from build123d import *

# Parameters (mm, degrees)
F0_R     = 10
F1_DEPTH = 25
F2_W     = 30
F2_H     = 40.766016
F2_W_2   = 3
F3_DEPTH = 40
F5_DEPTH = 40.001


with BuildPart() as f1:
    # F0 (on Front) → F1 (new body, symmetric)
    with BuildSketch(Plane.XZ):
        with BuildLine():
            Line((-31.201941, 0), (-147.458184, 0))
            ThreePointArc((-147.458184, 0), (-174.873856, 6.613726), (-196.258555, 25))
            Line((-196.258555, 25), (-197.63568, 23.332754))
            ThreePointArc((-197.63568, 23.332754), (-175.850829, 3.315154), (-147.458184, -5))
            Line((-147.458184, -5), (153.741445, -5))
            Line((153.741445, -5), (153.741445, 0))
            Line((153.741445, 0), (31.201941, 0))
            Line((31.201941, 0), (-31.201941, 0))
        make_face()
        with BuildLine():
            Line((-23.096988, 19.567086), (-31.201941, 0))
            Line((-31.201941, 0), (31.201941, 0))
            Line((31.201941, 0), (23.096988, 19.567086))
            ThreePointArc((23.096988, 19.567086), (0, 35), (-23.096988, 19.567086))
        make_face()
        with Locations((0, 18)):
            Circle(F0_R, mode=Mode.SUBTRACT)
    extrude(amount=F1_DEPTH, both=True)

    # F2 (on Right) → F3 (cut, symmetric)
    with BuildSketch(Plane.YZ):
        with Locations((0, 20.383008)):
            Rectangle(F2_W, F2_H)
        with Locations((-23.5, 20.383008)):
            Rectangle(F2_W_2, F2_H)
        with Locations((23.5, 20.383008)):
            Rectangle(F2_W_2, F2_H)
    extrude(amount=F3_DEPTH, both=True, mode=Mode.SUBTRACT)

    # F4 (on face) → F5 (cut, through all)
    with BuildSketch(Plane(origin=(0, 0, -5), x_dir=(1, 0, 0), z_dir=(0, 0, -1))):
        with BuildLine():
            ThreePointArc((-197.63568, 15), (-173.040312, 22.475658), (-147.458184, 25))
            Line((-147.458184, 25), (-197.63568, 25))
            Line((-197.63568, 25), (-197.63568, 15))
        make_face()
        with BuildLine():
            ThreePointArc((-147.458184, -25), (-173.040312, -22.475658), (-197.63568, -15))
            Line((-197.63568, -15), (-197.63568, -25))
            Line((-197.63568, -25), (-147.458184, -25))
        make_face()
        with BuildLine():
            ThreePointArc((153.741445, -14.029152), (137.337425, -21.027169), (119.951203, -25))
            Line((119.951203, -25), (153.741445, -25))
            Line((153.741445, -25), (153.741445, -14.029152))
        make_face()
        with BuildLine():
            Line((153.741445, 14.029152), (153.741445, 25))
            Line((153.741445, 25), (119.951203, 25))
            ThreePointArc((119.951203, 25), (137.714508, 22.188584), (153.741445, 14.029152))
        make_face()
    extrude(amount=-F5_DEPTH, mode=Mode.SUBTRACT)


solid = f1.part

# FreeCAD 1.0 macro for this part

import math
import FreeCAD as App
import Part
import Sketcher
Q = App.Units.Quantity


def add_polygon(sketch, points):
    """Adds a closed chain of lines whose ends are joined by coincident constraints."""
    first, n = sketch.GeometryCount, len(points)
    for a, b in zip(points, points[1:] + points[:1]):
        sketch.addGeometry(Part.LineSegment(App.Vector(*a, 0), App.Vector(*b, 0)), False)
    for i in range(n):
        sketch.addConstraint(Sketcher.Constraint("Coincident", first + i, 2, first + (i + 1) % n, 1))

doc = App.newDocument("Part")
body = doc.addObject("PartDesign::Body", "Body")

# Sketch on XZ plane
sketch1 = body.newObject("Sketcher::SketchObject", "Sketch")
sketch1.AttachmentSupport = (doc.getObject("XZ_Plane"), [""])
sketch1.MapMode = "FlatFace"
sketch1.addGeometry([
    Part.ArcOfCircle(Part.Circle(App.Vector(-147.458186, 60.129521, 0), App.Vector(0, 0, 1), 60.129521), math.radians(-144.251329), math.radians(-89.999998)),  # 0
    Part.LineSegment(App.Vector(-196.258555, 25, 0), App.Vector(-197.63568, 23.332754, 0)),  # 1
    Part.ArcOfCircle(Part.Circle(App.Vector(-143.827738, 60.028261, 0), App.Vector(0, 0, 1), 65.129524), math.radians(-145.707109), math.radians(-93.195434)),  # 2
    Part.LineSegment(App.Vector(-147.458184, -5, 0), App.Vector(153.741445, -5, 0)),  # 3
    Part.LineSegment(App.Vector(153.741445, -5, 0), App.Vector(153.741445, 0, 0)),  # 4
    Part.LineSegment(App.Vector(153.741445, 0, 0), App.Vector(31.201941, 0, 0)),  # 5
    Part.LineSegment(App.Vector(31.201941, 0, 0), App.Vector(23.096988, 19.567086, 0)),  # 6
    Part.ArcOfCircle(Part.Circle(App.Vector(0, 10, 0), App.Vector(0, 0, 1), 25), math.radians(22.5), math.radians(157.5)),  # 7
    Part.LineSegment(App.Vector(-23.096988, 19.567086, 0), App.Vector(-31.201941, 0, 0)),  # 8
    Part.LineSegment(App.Vector(-31.201941, 0, 0), App.Vector(-147.458184, 0, 0)),  # 9
    Part.Circle(App.Vector(0, 18, 0), App.Vector(0, 0, 1), 10),  # 10
], False)
sketch1.addConstraint([
    Sketcher.Constraint("Coincident", 0, 1, 1, 1),
    Sketcher.Constraint("Coincident", 1, 2, 2, 1),
    Sketcher.Constraint("Coincident", 2, 2, 3, 1),
    Sketcher.Constraint("Coincident", 3, 2, 4, 1),
    Sketcher.Constraint("Coincident", 4, 2, 5, 1),
    Sketcher.Constraint("Coincident", 5, 2, 6, 1),
    Sketcher.Constraint("Tangent", 6, 2, 7, 1),
    Sketcher.Constraint("Tangent", 7, 2, 8, 1),
    Sketcher.Constraint("Coincident", 8, 2, 9, 1),
    Sketcher.Constraint("Tangent", 9, 2, 0, 2),
    Sketcher.Constraint("Horizontal", 3),
    Sketcher.Constraint("Vertical", 4),
    Sketcher.Constraint("Horizontal", 5),
    Sketcher.Constraint("Horizontal", 9),
    Sketcher.Constraint("Symmetric", 5, 2, 8, 2, -1, 1),
    Sketcher.Constraint("Symmetric", 6, 2, 7, 2, -2),
    Sketcher.Constraint("PointOnObject", 10, 3, -2),
    Sketcher.Constraint("Vertical", 0, 3, 2, 2),
    Sketcher.Constraint("Diameter", 10, Q("20 mm")),
    Sketcher.Constraint("Radius", 7, Q("25 mm")),
    Sketcher.Constraint("DistanceY", 4, 1, 4, 2, Q("5 mm")),
    Sketcher.Constraint("DistanceY", -1, 1, 7, 3, Q("10 mm")),
    Sketcher.Constraint("DistanceY", -1, 1, 10, 3, Q("18 mm")),
    Sketcher.Constraint("DistanceY", -1, 1, 0, 1, Q("25 mm")),
    Sketcher.Constraint("Angle", 6, Q("112.500002 deg")),
    Sketcher.Constraint("Radius", 0, Q("60.129521 mm")),
    Sketcher.Constraint("Radius", 2, Q("65.129524 mm")),
    Sketcher.Constraint("DistanceX", 3, 1, 3, 2, Q("301.199629 mm")),
    Sketcher.Constraint("Distance", 1, Q("2.162448 mm")),
    Sketcher.Constraint("DistanceX", 5, 2, 5, 1, Q("122.539504 mm")),
    Sketcher.Constraint("DistanceY", -1, 1, 2, 3, Q("60.028261 mm")),
])
pad1 = body.newObject("PartDesign::Pad", "Pad")
pad1.Profile = sketch1
pad1.Length = 50
pad1.Midplane = True

# Sketch on YZ plane
sketch2 = body.newObject("Sketcher::SketchObject", "Sketch001")
sketch2.AttachmentSupport = (doc.getObject("YZ_Plane"), [""])
sketch2.MapMode = "FlatFace"
add_polygon(sketch2, [(-15, 40.766016), (-15, 0), (15, 0), (15, 40.766016)])  # lines 0-3
add_polygon(sketch2, [(-25, 40.766016), (-25, 0), (-22, 0), (-22, 40.766016)])  # lines 4-7
add_polygon(sketch2, [(22, 40.766016), (22, 0), (25, 0), (25, 40.766016)])  # lines 8-11
sketch2.addConstraint([
    Sketcher.Constraint("Vertical", 0),
    Sketcher.Constraint("Horizontal", 1),
    Sketcher.Constraint("Vertical", 2),
    Sketcher.Constraint("Horizontal", 3),
    Sketcher.Constraint("Vertical", 4),
    Sketcher.Constraint("Horizontal", 5),
    Sketcher.Constraint("Vertical", 6),
    Sketcher.Constraint("Horizontal", 7),
    Sketcher.Constraint("Vertical", 8),
    Sketcher.Constraint("Horizontal", 9),
    Sketcher.Constraint("Vertical", 10),
    Sketcher.Constraint("Horizontal", 11),
    Sketcher.Constraint("Symmetric", 0, 2, 1, 2, -1, 1),
    Sketcher.Constraint("Symmetric", 5, 2, 8, 2, -1, 1),
    Sketcher.Constraint("Symmetric", 4, 2, 9, 2, -2),
    Sketcher.Constraint("Horizontal", 3, 2, 6, 2),
    Sketcher.Constraint("Horizontal", 7, 2, 10, 2),
    Sketcher.Constraint("DistanceX", 1, 1, 1, 2, Q("30 mm")),
    Sketcher.Constraint("DistanceX", 5, 1, 5, 2, Q("3 mm")),
    Sketcher.Constraint("DistanceX", 4, 2, -1, 1, Q("25 mm")),
    Sketcher.Constraint("DistanceY", 0, 2, 0, 1, Q("40.766016 mm")),
])
pocket1 = body.newObject("PartDesign::Pocket", "Pocket")
pocket1.Profile = sketch2
pocket1.Length = 80
pocket1.Midplane = True

# Sketch on XY plane
sketch3 = body.newObject("Sketcher::SketchObject", "Sketch002")
sketch3.AttachmentSupport = (doc.getObject("XY_Plane"), [""])
sketch3.MapMode = "FlatFace"
sketch3.AttachmentOffset = App.Placement(App.Vector(0, 0, -5), App.Rotation())
sketch3.addGeometry([
    Part.ArcOfCircle(Part.Circle(App.Vector(-147.458188, 105.889036, 0), App.Vector(0, 0, 1), 130.889036), math.radians(-112.541904), math.radians(-89.999998)),  # 0
    Part.LineSegment(App.Vector(-147.458184, -25, 0), App.Vector(-197.63568, -25, 0)),  # 1
    Part.LineSegment(App.Vector(-197.63568, -25, 0), App.Vector(-197.63568, -15, 0)),  # 2
    Part.ArcOfCircle(Part.Circle(App.Vector(-147.458188, -105.889036, 0), App.Vector(0, 0, 1), 130.889036), math.radians(89.999998), math.radians(112.541904)),  # 3
    Part.LineSegment(App.Vector(-197.63568, 15, 0), App.Vector(-197.63568, 25, 0)),  # 4
    Part.LineSegment(App.Vector(-197.63568, 25, 0), App.Vector(-147.458184, 25, 0)),  # 5
    Part.ArcOfCircle(Part.Circle(App.Vector(106.456765, -74.08535, 0), App.Vector(0, 0, 1), 100.000032), math.radians(61.780762), math.radians(82.244599)),  # 6
    Part.LineSegment(App.Vector(119.951203, 25, 0), App.Vector(153.741445, 25, 0)),  # 7
    Part.LineSegment(App.Vector(153.741445, 25, 0), App.Vector(153.741445, 14.029152, 0)),  # 8
    Part.LineSegment(App.Vector(153.741445, -14.029152, 0), App.Vector(153.741445, -25, 0)),  # 9
    Part.LineSegment(App.Vector(153.741445, -25, 0), App.Vector(119.951203, -25, 0)),  # 10
    Part.ArcOfCircle(Part.Circle(App.Vector(119.951205, 32.522438, 0), App.Vector(0, 0, 1), 57.522438), math.radians(-90.000002), math.radians(-54.025359)),  # 11
], False)
sketch3.addConstraint([
    Sketcher.Constraint("Tangent", 0, 2, 1, 1),
    Sketcher.Constraint("Coincident", 1, 2, 2, 1),
    Sketcher.Constraint("Coincident", 2, 2, 0, 1),
    Sketcher.Constraint("Coincident", 3, 2, 4, 1),
    Sketcher.Constraint("Coincident", 4, 2, 5, 1),
    Sketcher.Constraint("Tangent", 5, 2, 3, 1),
    Sketcher.Constraint("Coincident", 6, 2, 7, 1),
    Sketcher.Constraint("Coincident", 7, 2, 8, 1),
    Sketcher.Constraint("Coincident", 8, 2, 6, 1),
    Sketcher.Constraint("Coincident", 9, 2, 10, 1),
    Sketcher.Constraint("Tangent", 10, 2, 11, 1),
    Sketcher.Constraint("Coincident", 11, 2, 9, 1),
    Sketcher.Constraint("Horizontal", 1),
    Sketcher.Constraint("Vertical", 2),
    Sketcher.Constraint("Vertical", 4),
    Sketcher.Constraint("Horizontal", 5),
    Sketcher.Constraint("Horizontal", 7),
    Sketcher.Constraint("Vertical", 8),
    Sketcher.Constraint("Vertical", 9),
    Sketcher.Constraint("Horizontal", 10),
    Sketcher.Constraint("Equal", 0, 3),
    Sketcher.Constraint("Symmetric", 0, 3, 3, 3, -1),
    Sketcher.Constraint("Symmetric", 7, 2, 9, 2, -1),
    Sketcher.Constraint("Horizontal", 5, 2, 6, 2),
    Sketcher.Constraint("Vertical", 2, 2, 3, 2),
    Sketcher.Constraint("Vertical", 11, 3, 6, 2),
    Sketcher.Constraint("Equal", 8, 9),
    Sketcher.Constraint("DistanceY", 2, 1, 2, 2, Q("10 mm")),
    Sketcher.Constraint("DistanceY", 0, 2, -1, 1, Q("25 mm")),
    Sketcher.Constraint("Radius", 0, Q("130.889036 mm")),
    Sketcher.Constraint("Radius", 6, Q("100.000032 mm")),
    Sketcher.Constraint("Radius", 11, Q("57.522438 mm")),
    Sketcher.Constraint("DistanceX", 7, 1, 7, 2, Q("33.790242 mm")),
    Sketcher.Constraint("DistanceX", 1, 2, -1, 1, Q("197.63568 mm")),
    Sketcher.Constraint("DistanceX", 0, 2, 6, 3, Q("253.914949 mm")),
])
pocket2 = body.newObject("PartDesign::Pocket", "Pocket001")
pocket2.Profile = sketch3
pocket2.Type = "ThroughAll"
pocket2.Reversed = True

doc.recompute()
